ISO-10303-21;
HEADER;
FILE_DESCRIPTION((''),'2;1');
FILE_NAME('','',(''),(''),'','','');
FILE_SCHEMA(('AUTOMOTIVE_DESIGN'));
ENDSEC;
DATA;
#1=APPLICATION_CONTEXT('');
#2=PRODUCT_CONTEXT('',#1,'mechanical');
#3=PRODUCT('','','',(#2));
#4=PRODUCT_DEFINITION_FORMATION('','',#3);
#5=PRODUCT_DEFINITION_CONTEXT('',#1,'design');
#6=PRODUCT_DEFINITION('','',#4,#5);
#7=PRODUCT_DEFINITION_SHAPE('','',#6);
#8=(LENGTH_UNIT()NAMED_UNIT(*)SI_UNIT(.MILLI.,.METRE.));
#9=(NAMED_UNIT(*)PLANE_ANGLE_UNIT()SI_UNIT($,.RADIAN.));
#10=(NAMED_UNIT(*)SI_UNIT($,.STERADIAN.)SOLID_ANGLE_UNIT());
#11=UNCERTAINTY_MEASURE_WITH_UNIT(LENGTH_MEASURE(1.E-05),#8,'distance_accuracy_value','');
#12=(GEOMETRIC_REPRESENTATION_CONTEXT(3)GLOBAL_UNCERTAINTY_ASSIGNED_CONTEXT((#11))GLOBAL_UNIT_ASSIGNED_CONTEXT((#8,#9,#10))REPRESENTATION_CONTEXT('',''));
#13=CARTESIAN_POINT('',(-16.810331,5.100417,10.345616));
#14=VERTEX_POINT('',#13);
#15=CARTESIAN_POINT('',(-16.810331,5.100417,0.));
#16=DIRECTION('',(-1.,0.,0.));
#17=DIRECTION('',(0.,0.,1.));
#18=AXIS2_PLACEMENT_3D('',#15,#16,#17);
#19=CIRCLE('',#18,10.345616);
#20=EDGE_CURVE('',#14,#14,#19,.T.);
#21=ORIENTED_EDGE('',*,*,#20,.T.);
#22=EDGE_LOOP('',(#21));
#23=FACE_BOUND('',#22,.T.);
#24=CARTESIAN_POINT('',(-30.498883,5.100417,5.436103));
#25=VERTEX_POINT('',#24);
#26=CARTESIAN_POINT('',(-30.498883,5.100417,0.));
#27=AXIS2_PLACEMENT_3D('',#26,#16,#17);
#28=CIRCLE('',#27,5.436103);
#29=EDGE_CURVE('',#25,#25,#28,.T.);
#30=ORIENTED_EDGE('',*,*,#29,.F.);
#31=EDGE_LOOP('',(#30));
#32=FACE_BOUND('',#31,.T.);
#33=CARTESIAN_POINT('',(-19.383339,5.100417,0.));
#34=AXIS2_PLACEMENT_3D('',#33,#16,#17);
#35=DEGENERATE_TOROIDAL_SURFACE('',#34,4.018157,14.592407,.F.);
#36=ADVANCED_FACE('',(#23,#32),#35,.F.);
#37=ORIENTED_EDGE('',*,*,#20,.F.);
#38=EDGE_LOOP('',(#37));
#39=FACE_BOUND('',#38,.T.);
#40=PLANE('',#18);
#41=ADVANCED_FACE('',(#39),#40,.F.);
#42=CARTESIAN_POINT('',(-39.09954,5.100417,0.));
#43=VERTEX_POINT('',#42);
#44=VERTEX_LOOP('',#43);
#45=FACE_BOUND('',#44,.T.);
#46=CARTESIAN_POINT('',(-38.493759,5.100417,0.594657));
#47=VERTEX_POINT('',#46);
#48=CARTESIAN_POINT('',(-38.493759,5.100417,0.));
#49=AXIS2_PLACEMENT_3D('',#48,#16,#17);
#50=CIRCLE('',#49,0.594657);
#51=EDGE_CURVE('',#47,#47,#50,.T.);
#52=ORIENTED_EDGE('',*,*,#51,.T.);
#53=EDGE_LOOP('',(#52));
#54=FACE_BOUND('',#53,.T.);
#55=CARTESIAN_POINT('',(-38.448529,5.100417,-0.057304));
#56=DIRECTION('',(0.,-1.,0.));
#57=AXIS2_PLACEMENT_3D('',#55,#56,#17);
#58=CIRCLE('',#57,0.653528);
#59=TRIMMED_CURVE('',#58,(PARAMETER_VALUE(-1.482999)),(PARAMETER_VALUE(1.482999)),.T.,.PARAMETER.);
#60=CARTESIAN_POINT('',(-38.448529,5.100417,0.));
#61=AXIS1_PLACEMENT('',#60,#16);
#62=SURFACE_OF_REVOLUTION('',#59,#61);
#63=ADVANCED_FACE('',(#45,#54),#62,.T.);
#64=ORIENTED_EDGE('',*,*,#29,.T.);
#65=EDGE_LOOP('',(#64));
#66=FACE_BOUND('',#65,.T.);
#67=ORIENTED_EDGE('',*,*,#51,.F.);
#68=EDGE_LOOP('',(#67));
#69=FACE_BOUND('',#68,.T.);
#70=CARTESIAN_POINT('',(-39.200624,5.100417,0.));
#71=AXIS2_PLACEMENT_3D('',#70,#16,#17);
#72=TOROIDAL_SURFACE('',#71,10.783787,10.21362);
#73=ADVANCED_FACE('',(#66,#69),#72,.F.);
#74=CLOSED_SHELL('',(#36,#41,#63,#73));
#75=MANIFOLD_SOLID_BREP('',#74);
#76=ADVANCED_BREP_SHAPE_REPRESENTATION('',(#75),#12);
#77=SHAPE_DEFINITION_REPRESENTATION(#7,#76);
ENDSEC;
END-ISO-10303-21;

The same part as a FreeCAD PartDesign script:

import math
import FreeCAD as App
import Part
import Sketcher

V = App.Vector
Q = App.Units.Quantity

doc = App.newDocument("Part")
body = doc.addObject("PartDesign::Body", "Body")

sketch1 = body.newObject("Sketcher::SketchObject", "Sketch")
sketch1.AttachmentSupport = (doc.getObject("XY_Plane"), [""])
sketch1.MapMode = "FlatFace"
sketch1.addGeometry(Part.LineSegment(V(-39.09954, 5.100417, 0), V(-16.810331, 5.100417, 0)), False)
sketch1.addGeometry(Part.LineSegment(V(-16.810331, 5.100417, 0), V(-16.810331, 15.446033, 0)), False)
sketch1.addGeometry(Part.ArcOfCircle(Part.Circle(V(-19.383339, 1.08226, 0), V(0, 0, 1), 14.592407), math.radians(79.84422), math.radians(139.617374)), False)
sketch1.addGeometry(Part.ArcOfCircle(Part.Circle(V(-39.200624, 15.884204, 0), V(0, 0, 1), 10.21362), math.radians(-86.031493), math.radians(-31.572945)), False)
sketch1.addGeometry(Part.ArcOfCircle(Part.Circle(V(-38.448529, 5.043112, 0), V(0, 0, 1), 0.653528), math.radians(93.968507), math.radians(174.969593)), False)
sketch1.addGeometry(Part.LineSegment(V(-39.200624, 5.100417, 0), V(-16.810331, 5.100417, 0)), True)
sketch1.addConstraint(Sketcher.Constraint("Coincident", 0, 2, 1, 1))
sketch1.addConstraint(Sketcher.Constraint("Coincident", 1, 2, 2, 1))
sketch1.addConstraint(Sketcher.Constraint("Coincident", 2, 2, 3, 2))
sketch1.addConstraint(Sketcher.Constraint("Tangent", 3, 1, 4, 1))
sketch1.addConstraint(Sketcher.Constraint("Coincident", 4, 2, 0, 1))
sketch1.addConstraint(Sketcher.Constraint("Horizontal", 0))
sketch1.addConstraint(Sketcher.Constraint("Vertical", 1))
sketch1.addConstraint(Sketcher.Constraint("Horizontal", 5))
sketch1.addConstraint(Sketcher.Constraint("Coincident", 5, 2, 0, 2))
sketch1.addConstraint(Sketcher.Constraint("Vertical", 3, 3, 5, 1))
sketch1.addConstraint(Sketcher.Constraint("Radius", 3, Q("10.21362 mm")))
sketch1.addConstraint(Sketcher.Constraint("Radius", 4, Q("0.653528 mm")))
sketch1.addConstraint(Sketcher.Constraint("Radius", 2, Q("14.592407 mm")))
sketch1.addConstraint(Sketcher.Constraint("DistanceX", 0, 1, 0, 2, Q("22.289209 mm")))
sketch1.addConstraint(Sketcher.Constraint("DistanceX", 4, 3, 0, 2, Q("21.638198 mm")))
sketch1.addConstraint(Sketcher.Constraint("DistanceX", 4, 2, 2, 3, Q("19.716201 mm")))
sketch1.addConstraint(Sketcher.Constraint("DistanceX", 5, 1, 5, 2, Q("22.390293 mm")))
sketch1.addConstraint(Sketcher.Constraint("DistanceY", 1, 1, 1, 2, Q("10.345616 mm")))
sketch1.addConstraint(Sketcher.Constraint("DistanceX", 2, 3, -1, 1, Q("19.383339 mm")))
sketch1.addConstraint(Sketcher.Constraint("DistanceY", -1, 1, 2, 3, Q("1.08226 mm")))
revolution = body.newObject("PartDesign::Revolution", "Revolution")
revolution.Profile = sketch1
revolution.ReferenceAxis = (sketch1, ["Axis0"])
revolution.Angle = 360

doc.recompute()
